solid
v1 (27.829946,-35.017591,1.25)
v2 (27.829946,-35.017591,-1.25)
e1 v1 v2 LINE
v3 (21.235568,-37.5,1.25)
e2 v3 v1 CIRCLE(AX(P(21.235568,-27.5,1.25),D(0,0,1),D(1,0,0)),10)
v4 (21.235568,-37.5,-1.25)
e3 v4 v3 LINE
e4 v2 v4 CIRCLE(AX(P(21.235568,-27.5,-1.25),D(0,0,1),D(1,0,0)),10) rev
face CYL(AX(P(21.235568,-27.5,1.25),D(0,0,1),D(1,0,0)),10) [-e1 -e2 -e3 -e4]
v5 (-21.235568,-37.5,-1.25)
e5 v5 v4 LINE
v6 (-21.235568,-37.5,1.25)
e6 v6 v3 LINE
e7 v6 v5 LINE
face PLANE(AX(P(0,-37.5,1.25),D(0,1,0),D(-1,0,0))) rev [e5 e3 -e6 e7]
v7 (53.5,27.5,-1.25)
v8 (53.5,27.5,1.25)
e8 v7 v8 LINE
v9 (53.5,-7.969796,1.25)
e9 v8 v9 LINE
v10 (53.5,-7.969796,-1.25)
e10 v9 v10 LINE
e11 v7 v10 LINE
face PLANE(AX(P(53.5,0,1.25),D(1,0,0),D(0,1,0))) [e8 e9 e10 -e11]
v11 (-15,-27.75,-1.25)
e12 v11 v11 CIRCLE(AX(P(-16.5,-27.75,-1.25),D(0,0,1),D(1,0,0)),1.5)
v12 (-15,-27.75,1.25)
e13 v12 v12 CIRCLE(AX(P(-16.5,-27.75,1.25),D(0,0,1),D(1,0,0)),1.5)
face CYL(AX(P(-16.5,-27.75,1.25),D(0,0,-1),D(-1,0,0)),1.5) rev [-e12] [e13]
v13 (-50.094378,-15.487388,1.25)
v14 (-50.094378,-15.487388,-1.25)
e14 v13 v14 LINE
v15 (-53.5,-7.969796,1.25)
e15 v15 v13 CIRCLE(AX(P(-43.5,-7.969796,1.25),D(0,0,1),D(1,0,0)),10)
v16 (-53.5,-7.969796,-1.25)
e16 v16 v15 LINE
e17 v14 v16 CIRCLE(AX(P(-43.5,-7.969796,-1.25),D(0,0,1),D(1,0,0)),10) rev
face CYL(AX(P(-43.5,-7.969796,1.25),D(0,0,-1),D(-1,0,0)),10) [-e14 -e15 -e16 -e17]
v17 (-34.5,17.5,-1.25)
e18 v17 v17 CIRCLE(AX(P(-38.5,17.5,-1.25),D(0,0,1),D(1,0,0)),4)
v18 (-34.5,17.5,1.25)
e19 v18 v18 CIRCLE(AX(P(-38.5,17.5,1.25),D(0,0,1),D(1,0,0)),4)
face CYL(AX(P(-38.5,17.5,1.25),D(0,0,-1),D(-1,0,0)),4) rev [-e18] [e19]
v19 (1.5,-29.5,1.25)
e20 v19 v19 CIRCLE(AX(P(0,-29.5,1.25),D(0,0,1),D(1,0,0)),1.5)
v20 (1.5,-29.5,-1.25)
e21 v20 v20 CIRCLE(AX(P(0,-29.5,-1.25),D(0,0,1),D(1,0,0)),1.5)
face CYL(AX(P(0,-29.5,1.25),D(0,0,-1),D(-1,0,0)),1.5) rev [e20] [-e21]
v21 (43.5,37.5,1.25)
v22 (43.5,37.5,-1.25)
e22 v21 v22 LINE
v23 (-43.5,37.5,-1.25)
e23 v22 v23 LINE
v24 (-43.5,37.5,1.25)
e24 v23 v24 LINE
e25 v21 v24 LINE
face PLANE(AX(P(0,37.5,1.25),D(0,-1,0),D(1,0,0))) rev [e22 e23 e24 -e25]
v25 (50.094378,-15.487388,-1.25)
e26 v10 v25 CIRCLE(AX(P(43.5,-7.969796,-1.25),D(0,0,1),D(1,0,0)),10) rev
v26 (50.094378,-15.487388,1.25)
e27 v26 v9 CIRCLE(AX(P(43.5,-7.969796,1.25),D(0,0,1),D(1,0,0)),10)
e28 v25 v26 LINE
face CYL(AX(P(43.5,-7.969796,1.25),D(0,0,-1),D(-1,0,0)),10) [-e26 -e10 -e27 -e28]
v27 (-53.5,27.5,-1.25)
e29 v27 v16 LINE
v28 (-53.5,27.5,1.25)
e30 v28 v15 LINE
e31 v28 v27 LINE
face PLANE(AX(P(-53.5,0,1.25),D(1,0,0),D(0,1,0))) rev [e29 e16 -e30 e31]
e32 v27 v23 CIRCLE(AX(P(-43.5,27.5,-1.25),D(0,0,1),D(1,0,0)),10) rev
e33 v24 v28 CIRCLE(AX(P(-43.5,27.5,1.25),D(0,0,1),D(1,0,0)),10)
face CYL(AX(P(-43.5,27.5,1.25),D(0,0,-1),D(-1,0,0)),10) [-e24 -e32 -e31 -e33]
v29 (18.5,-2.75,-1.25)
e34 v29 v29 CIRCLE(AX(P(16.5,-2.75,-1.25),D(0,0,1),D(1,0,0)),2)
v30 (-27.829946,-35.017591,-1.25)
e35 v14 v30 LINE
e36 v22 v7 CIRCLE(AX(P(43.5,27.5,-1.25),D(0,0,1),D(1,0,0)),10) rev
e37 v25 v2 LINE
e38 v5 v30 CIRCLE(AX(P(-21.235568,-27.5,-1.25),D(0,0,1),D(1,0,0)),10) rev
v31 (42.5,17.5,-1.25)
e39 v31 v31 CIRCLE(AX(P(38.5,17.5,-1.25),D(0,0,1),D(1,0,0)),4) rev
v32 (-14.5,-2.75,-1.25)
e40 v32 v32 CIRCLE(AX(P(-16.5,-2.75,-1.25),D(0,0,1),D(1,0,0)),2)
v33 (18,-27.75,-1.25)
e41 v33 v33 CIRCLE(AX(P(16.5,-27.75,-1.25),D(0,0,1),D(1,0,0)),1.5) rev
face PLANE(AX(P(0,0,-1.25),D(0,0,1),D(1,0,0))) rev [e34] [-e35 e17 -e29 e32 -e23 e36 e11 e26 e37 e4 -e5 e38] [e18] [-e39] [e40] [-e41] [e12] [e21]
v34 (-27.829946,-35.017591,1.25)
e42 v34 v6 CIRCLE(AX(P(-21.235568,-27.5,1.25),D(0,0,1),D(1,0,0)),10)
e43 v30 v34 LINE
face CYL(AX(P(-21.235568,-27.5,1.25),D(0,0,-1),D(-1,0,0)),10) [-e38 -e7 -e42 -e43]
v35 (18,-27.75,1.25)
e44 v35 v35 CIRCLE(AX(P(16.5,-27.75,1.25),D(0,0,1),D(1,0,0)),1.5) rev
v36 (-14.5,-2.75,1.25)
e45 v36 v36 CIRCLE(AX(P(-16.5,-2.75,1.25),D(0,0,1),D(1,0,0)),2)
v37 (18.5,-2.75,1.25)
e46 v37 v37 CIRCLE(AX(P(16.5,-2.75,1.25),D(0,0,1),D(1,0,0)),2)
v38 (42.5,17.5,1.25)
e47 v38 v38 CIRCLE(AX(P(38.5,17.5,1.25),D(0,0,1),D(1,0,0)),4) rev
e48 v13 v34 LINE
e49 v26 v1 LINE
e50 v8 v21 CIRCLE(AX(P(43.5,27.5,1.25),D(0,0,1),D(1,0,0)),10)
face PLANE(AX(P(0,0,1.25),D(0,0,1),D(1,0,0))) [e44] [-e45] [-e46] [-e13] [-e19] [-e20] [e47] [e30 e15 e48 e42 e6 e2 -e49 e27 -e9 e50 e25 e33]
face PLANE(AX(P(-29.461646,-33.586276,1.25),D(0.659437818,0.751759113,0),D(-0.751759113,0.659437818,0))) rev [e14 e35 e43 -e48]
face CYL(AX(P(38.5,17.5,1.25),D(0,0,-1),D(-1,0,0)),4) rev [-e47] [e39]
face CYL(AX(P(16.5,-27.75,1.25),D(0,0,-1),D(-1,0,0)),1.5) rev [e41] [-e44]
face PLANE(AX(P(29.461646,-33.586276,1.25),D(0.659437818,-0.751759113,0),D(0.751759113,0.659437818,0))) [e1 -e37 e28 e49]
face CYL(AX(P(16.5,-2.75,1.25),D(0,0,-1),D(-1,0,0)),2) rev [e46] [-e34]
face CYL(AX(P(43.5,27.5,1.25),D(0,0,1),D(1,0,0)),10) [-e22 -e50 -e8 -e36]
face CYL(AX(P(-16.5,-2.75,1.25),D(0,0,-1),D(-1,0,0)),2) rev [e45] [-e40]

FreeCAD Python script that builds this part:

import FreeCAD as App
import Part
import Sketcher
from FreeCAD import Vector


def edges_at(feature, points):
    """Names of the edges that pass closest to the given points."""
    edges = feature.Shape.Edges
    near = lambda p: min(range(len(edges)), key=lambda i: edges[i].distToShape(Part.Vertex(*p))[0])
    return sorted({f"Edge{near(p) + 1}" for p in points})

doc = App.newDocument("Part")
body = doc.addObject("PartDesign::Body", "Body")

# Sketch on XY plane
sketch1 = doc.addObject("Sketcher::SketchObject", "Sketch")
body.addObject(sketch1)
sketch1.AttachmentSupport = (doc.XY_Plane, [""])
sketch1.MapMode = "FlatFace"
sketch1.addGeometry(Part.LineSegment(Vector(53.5, 37.5, 0), Vector(-53.5, 37.5, 0)), False)
sketch1.addGeometry(Part.LineSegment(Vector(-53.5, 37.5, 0), Vector(-53.5, -12.5, 0)), False)
sketch1.addGeometry(Part.LineSegment(Vector(-53.5, -12.5, 0), Vector(-25, -37.5, 0)), False)
sketch1.addGeometry(Part.LineSegment(Vector(-25, -37.5, 0), Vector(25, -37.5, 0)), False)
sketch1.addGeometry(Part.LineSegment(Vector(25, -37.5, 0), Vector(53.5, -12.5, 0)), False)
sketch1.addGeometry(Part.LineSegment(Vector(53.5, -12.5, 0), Vector(53.5, 37.5, 0)), False)
sketch1.addGeometry(Part.Circle(Vector(-16.5, -27.8, 0), Vector(0, 0, 1), 1.5), False)
sketch1.addGeometry(Part.Circle(Vector(0, -29.5, 0), Vector(0, 0, 1), 1.5), False)
sketch1.addGeometry(Part.Circle(Vector(16.5, -27.8, 0), Vector(0, 0, 1), 1.5), False)
sketch1.addGeometry(Part.Circle(Vector(-16.5, -2.8, 0), Vector(0, 0, 1), 2), False)
sketch1.addGeometry(Part.Circle(Vector(-38.5, 17.5, 0), Vector(0, 0, 1), 4), False)
sketch1.addGeometry(Part.Circle(Vector(16.5, -2.8, 0), Vector(0, 0, 1), 2), False)
sketch1.addGeometry(Part.Circle(Vector(38.5, 17.5, 0), Vector(0, 0, 1), 4), False)
sketch1.addConstraint(Sketcher.Constraint("Coincident", 0, 2, 1, 1))
sketch1.addConstraint(Sketcher.Constraint("Coincident", 1, 2, 2, 1))
sketch1.addConstraint(Sketcher.Constraint("Coincident", 2, 2, 3, 1))
sketch1.addConstraint(Sketcher.Constraint("Coincident", 3, 2, 4, 1))
sketch1.addConstraint(Sketcher.Constraint("Coincident", 4, 2, 5, 1))
sketch1.addConstraint(Sketcher.Constraint("Coincident", 5, 2, 0, 1))
sketch1.addConstraint(Sketcher.Constraint("Horizontal", 0))
sketch1.addConstraint(Sketcher.Constraint("Vertical", 1))
sketch1.addConstraint(Sketcher.Constraint("Horizontal", 3))
sketch1.addConstraint(Sketcher.Constraint("Vertical", 5))
sketch1.addConstraint(Sketcher.Constraint("Equal", 6, 7))
sketch1.addConstraint(Sketcher.Constraint("Equal", 7, 8))
sketch1.addConstraint(Sketcher.Constraint("Equal", 9, 11))
sketch1.addConstraint(Sketcher.Constraint("Equal", 10, 12))
sketch1.addConstraint(Sketcher.Constraint("Symmetric", 6, 3, 8, 3, -2))
sketch1.addConstraint(Sketcher.Constraint("Symmetric", 9, 3, 11, 3, -2))
sketch1.addConstraint(Sketcher.Constraint("Symmetric", 10, 3, 12, 3, -2))
sketch1.addConstraint(Sketcher.Constraint("Symmetric", 1, 2, 4, 2, -2))
sketch1.addConstraint(Sketcher.Constraint("PointOnObject", 7, 3, -2))
sketch1.addConstraint(Sketcher.Constraint("Vertical", 6, 3, 9, 3))
sketch1.addConstraint(Sketcher.Constraint("Equal", 3, 1))
sketch1.addConstraint(Sketcher.Constraint("Equal", 2, 4))
sketch1.addConstraint(Sketcher.Constraint("Diameter", 6, 3.0))
sketch1.addConstraint(Sketcher.Constraint("Diameter", 9, 4.0))
sketch1.addConstraint(Sketcher.Constraint("Diameter", 10, 8.0))
sketch1.addConstraint(Sketcher.Constraint("DistanceX", 0, 2, 0, 1, 107.0))
sketch1.addConstraint(Sketcher.Constraint("DistanceX", 3, 1, 3, 2, 50.0))
sketch1.addConstraint(Sketcher.Constraint("DistanceX", 6, 3, 8, 3, 33.0))
sketch1.addConstraint(Sketcher.Constraint("DistanceY", 6, 3, 9, 3, 25.0))
sketch1.addConstraint(Sketcher.Constraint("DistanceX", 10, 3, 9, 3, 22.0))
sketch1.addConstraint(Sketcher.Constraint("DistanceY", 7, 3, 10, 3, 47.0))
sketch1.addConstraint(Sketcher.Constraint("DistanceY", 10, 3, 0, 2, 20.0))
sketch1.addConstraint(Sketcher.Constraint("DistanceY", 2, 2, 7, 3, 8.0))
sketch1.addConstraint(Sketcher.Constraint("DistanceY", 7, 3, -1, 1, 29.5))
sketch1.addConstraint(Sketcher.Constraint("DistanceY", 6, 3, -1, 1, 27.75))
pad1 = doc.addObject("PartDesign::Pad", "Pad")
body.addObject(pad1)
pad1.Profile = sketch1
pad1.Length = 2.5
pad1.Midplane = True
doc.recompute()

fillet = doc.addObject("PartDesign::Fillet", "Fillet")
body.addObject(fillet)
fillet.Base = (pad1, edges_at(pad1, [
    (53.5, -12.5, 0),
    (25, -37.5, 0),
    (-25, -37.5, 0),
    (-53.5, -12.5, 0),
    (-53.5, 37.5, 0),
    (53.5, 37.5, 0),
]))
fillet.Radius = 10

doc.recompute()
